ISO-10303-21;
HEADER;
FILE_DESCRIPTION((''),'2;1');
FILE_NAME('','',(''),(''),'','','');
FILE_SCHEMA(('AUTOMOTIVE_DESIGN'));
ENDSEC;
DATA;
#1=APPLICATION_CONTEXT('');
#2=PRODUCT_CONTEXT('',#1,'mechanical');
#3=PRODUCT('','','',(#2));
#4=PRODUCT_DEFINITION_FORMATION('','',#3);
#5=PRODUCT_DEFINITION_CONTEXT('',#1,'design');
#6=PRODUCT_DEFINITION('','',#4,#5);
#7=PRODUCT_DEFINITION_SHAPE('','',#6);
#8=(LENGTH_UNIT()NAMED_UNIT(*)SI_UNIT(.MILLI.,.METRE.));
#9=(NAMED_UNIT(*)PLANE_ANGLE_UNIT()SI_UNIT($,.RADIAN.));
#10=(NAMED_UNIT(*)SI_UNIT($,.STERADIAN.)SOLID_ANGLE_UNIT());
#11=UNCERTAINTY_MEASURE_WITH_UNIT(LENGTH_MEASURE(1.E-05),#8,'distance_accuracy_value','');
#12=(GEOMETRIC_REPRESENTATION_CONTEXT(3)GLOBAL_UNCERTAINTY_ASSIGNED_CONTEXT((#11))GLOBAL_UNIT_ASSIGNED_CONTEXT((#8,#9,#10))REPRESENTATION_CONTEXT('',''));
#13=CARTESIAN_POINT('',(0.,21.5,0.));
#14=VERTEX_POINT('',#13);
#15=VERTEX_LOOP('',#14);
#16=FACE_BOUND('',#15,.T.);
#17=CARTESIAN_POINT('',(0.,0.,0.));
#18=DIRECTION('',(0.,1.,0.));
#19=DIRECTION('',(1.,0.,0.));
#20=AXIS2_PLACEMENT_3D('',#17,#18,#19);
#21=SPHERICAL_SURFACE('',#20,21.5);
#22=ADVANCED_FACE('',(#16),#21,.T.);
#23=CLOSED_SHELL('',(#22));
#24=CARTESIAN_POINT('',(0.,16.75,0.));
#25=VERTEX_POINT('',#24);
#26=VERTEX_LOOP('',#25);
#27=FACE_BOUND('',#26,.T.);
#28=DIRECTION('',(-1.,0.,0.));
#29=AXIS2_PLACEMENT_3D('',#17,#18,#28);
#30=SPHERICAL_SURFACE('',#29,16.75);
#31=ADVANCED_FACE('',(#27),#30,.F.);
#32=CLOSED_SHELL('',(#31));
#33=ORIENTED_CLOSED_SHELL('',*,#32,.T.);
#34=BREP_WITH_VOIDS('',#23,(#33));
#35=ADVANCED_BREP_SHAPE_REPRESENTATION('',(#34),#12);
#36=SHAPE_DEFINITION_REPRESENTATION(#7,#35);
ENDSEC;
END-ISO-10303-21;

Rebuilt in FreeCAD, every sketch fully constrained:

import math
import FreeCAD as App
import Part
import Sketcher
Q = App.Units.Quantity

doc = App.newDocument("Part")
params = doc.addObject("Spreadsheet::Sheet", "Params")
for row, (alias, value) in enumerate([
    ("sketch1_radius", "21.5 mm"),
    ("sketch1_radius2", "16.75 mm"),
    ("revolution_angle", "360 deg"),
], start=1):
    params.set(f"A{row}", alias)
    params.set(f"B{row}", "=" + value)
    params.setAlias(f"B{row}", alias)

body = doc.addObject("PartDesign::Body", "Body")

sketch1 = body.newObject("Sketcher::SketchObject", "Sketch")
sketch1.AttachmentSupport = (doc.getObject("XY_Plane"), [""])
sketch1.MapMode = "FlatFace"
sketch1.addGeometry(Part.LineSegment(App.Vector(0, 16.8, 0), App.Vector(0, 21.5, 0)), False)
sketch1.addGeometry(Part.ArcOfCircle(Part.Circle(App.Vector(0, 0, 0), App.Vector(0, 0, 1), 21.5), math.radians(90), math.radians(270)), False)
sketch1.addGeometry(Part.LineSegment(App.Vector(0, -21.5, 0), App.Vector(0, -16.8, 0)), False)
sketch1.addGeometry(Part.ArcOfCircle(Part.Circle(App.Vector(0, 0, 0), App.Vector(0, 0, 1), 16.8), math.radians(90), math.radians(270)), False)
sketch1.addConstraint(Sketcher.Constraint("Coincident", 0, 2, 1, 1))
sketch1.addConstraint(Sketcher.Constraint("Coincident", 1, 2, 2, 1))
sketch1.addConstraint(Sketcher.Constraint("Coincident", 2, 2, 3, 2))
sketch1.addConstraint(Sketcher.Constraint("Coincident", 3, 1, 0, 1))
sketch1.addConstraint(Sketcher.Constraint("Vertical", 0))
sketch1.addConstraint(Sketcher.Constraint("Vertical", 2))
sketch1.addConstraint(Sketcher.Constraint("Coincident", 1, 3, -1, 1))
sketch1.addConstraint(Sketcher.Constraint("Coincident", 3, 3, -1, 1))
sketch1.addConstraint(Sketcher.Constraint("PointOnObject", 0, 2, -2))
sketch1.addConstraint(Sketcher.Constraint("PointOnObject", 1, 2, -2))
sketch1.addConstraint(Sketcher.Constraint("Radius", 1, Q("21.5 mm")))
sketch1.addConstraint(Sketcher.Constraint("Radius", 3, Q("16.75 mm")))
sketch1.setExpression("Constraints[10]", "Params.sketch1_radius")
sketch1.setExpression("Constraints[11]", "Params.sketch1_radius2")
revolution = body.newObject("PartDesign::Revolution", "Revolution")
revolution.Profile = sketch1
revolution.ReferenceAxis = (sketch1, ["V_Axis"])
revolution.setExpression("Angle", "Params.revolution_angle")

doc.recompute()
